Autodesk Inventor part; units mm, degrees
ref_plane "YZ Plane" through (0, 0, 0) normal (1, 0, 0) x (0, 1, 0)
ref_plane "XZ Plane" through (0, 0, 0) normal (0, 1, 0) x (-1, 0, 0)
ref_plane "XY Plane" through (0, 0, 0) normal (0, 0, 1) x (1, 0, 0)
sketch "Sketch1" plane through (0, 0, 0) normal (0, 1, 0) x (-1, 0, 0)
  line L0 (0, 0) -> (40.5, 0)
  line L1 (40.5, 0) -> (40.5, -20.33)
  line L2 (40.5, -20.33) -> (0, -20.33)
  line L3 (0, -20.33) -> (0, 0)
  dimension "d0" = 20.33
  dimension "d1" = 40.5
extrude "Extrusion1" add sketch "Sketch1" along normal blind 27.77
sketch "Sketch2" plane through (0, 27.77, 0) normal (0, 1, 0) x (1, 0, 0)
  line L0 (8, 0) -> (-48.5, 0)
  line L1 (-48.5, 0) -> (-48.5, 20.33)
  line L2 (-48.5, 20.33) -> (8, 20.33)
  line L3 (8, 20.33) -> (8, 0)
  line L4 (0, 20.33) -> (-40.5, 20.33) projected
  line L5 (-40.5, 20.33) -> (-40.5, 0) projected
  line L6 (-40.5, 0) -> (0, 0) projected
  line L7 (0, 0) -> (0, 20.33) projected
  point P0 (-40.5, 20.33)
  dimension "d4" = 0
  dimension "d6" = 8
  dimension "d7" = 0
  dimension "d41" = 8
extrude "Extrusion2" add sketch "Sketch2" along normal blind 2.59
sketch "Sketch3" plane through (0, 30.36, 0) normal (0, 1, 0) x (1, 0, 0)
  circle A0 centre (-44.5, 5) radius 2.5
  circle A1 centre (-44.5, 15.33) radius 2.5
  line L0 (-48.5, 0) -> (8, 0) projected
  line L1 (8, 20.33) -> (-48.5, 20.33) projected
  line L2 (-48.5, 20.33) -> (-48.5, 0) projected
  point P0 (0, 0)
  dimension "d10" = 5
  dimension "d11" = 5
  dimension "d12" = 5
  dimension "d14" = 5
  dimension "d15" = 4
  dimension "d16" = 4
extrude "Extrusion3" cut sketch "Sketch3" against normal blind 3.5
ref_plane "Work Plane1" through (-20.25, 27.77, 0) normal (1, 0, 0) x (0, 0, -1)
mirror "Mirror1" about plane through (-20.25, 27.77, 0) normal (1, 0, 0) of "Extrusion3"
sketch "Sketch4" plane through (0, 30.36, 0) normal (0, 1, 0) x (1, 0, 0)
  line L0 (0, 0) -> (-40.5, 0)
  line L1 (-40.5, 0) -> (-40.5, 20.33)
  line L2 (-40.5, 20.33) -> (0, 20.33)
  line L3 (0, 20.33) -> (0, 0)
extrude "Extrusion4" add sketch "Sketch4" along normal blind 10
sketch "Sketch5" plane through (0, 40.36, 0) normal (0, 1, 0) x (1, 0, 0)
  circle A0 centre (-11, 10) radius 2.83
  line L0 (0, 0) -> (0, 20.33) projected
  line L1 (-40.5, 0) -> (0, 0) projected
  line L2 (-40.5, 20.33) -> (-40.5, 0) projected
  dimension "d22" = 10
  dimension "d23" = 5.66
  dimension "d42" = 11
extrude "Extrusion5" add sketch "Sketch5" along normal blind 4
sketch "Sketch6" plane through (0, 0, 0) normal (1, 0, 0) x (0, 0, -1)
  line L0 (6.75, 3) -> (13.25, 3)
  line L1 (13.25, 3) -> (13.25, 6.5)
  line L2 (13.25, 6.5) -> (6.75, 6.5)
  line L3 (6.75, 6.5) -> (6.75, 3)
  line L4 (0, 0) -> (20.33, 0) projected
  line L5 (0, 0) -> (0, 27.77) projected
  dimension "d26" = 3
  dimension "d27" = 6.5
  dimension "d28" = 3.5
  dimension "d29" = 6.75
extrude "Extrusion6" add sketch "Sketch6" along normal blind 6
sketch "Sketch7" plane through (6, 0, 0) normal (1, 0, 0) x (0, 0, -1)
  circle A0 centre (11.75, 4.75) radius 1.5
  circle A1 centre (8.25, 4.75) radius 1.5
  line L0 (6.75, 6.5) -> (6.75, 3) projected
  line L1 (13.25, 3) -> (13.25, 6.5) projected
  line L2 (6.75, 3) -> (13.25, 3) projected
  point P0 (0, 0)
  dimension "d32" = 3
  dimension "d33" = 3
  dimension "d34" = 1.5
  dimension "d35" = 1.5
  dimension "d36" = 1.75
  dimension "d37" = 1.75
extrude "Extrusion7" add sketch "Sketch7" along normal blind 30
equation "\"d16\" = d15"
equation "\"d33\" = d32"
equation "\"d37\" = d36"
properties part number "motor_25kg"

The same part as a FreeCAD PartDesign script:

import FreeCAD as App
import Part
import Sketcher

V = App.Vector
Q = App.Units.Quantity


def add_polygon(sketch, points):
    """Adds a closed chain of lines whose ends are joined by coincident constraints."""
    first, n = sketch.GeometryCount, len(points)
    for a, b in zip(points, points[1:] + points[:1]):
        sketch.addGeometry(Part.LineSegment(App.Vector(*a, 0), App.Vector(*b, 0)), False)
    for i in range(n):
        sketch.addConstraint(Sketcher.Constraint("Coincident", first + i, 2, first + (i + 1) % n, 1))

doc = App.newDocument("Part")
params = doc.addObject("Spreadsheet::Sheet", "Params")
for row, (alias, value) in enumerate([
    ("sketch1_width", "40.5 mm"),
    ("sketch1_height", "20.33 mm"),
    ("pad1_length", "27.77 mm"),
    ("sketch2_width", "56.5 mm"),
    ("sketch2_height", "20.33 mm"),
    ("pad2_length", "2.59 mm"),
    ("sketch3_diameter", "5 mm"),
    ("pocket1_length", "3.5 mm"),
    ("sketch4_width", "40.5 mm"),
    ("sketch4_height", "20.33 mm"),
    ("pad3_length", "10 mm"),
    ("sketch5_diameter", "5.66 mm"),
    ("pad4_length", "4 mm"),
    ("sketch6_width", "3.5 mm"),
    ("sketch6_height", "6.5 mm"),
    ("pad5_length", "6 mm"),
    ("sketch7_diameter", "3 mm"),
    ("pad6_length", "30 mm"),
], start=1):
    params.set(f"A{row}", alias)
    params.set(f"B{row}", "=" + value)
    params.setAlias(f"B{row}", alias)

body = doc.addObject("PartDesign::Body", "Body")

# Sketch on XZ plane
sketch1 = doc.addObject("Sketcher::SketchObject", "Sketch")
body.addObject(sketch1)
sketch1.AttachmentSupport = (doc.XZ_Plane, [""])
sketch1.MapMode = "FlatFace"
add_polygon(sketch1, [(-40, 0), (0, 0), (0, -20), (-40, -20)])  # lines 0-3
sketch1.addConstraint(Sketcher.Constraint("Horizontal", 0))
sketch1.addConstraint(Sketcher.Constraint("Vertical", 1))
sketch1.addConstraint(Sketcher.Constraint("Horizontal", 2))
sketch1.addConstraint(Sketcher.Constraint("Vertical", 3))
sketch1.addConstraint(Sketcher.Constraint("Coincident", 0, 2, -1, 1))
sketch1.addConstraint(Sketcher.Constraint("DistanceX", 0, 1, 0, 2, Q("40.5 mm")))
sketch1.addConstraint(Sketcher.Constraint("DistanceY", 1, 2, 1, 1, Q("20.33 mm")))
sketch1.setExpression("Constraints[9]", "Params.sketch1_width")
sketch1.setExpression("Constraints[10]", "Params.sketch1_height")
pad1 = doc.addObject("PartDesign::Pad", "Pad")
body.addObject(pad1)
pad1.Profile = sketch1
pad1.setExpression("Length", "Params.pad1_length")
pad1.Reversed = True

# Sketch on XZ plane
sketch2 = doc.addObject("Sketcher::SketchObject", "Sketch001")
body.addObject(sketch2)
sketch2.AttachmentSupport = (doc.XZ_Plane, [""])
sketch2.MapMode = "FlatFace"
sketch2.AttachmentOffset = App.Placement(V(0, 0, -27.77), App.Rotation())
add_polygon(sketch2, [(8, 0), (8, -20), (-48, -20), (-48, 0)])  # lines 0-3
sketch2.addConstraint(Sketcher.Constraint("Vertical", 0))
sketch2.addConstraint(Sketcher.Constraint("Horizontal", 1))
sketch2.addConstraint(Sketcher.Constraint("Vertical", 2))
sketch2.addConstraint(Sketcher.Constraint("Horizontal", 3))
sketch2.addConstraint(Sketcher.Constraint("PointOnObject", 2, 2, -1))
sketch2.addConstraint(Sketcher.Constraint("DistanceX", -1, 1, 0, 2, Q("8 mm")))
sketch2.addConstraint(Sketcher.Constraint("DistanceX", 1, 2, 1, 1, Q("56.5 mm")))
sketch2.addConstraint(Sketcher.Constraint("DistanceY", 0, 2, 0, 1, Q("20.33 mm")))
sketch2.setExpression("Constraints[10]", "Params.sketch2_width")
sketch2.setExpression("Constraints[11]", "Params.sketch2_height")
pad2 = doc.addObject("PartDesign::Pad", "Pad001")
body.addObject(pad2)
pad2.Profile = sketch2
pad2.setExpression("Length", "Params.pad2_length")
pad2.Reversed = True

# Sketch on XZ plane
sketch3 = doc.addObject("Sketcher::SketchObject", "Sketch002")
body.addObject(sketch3)
sketch3.AttachmentSupport = (doc.XZ_Plane, [""])
sketch3.MapMode = "FlatFace"
sketch3.AttachmentOffset = App.Placement(V(0, 0, -30.36), App.Rotation())
sketch3.addGeometry(Part.Circle(V(-44.5, -5, 0), V(0, 0, 1), 2.5), False)
sketch3.addGeometry(Part.Circle(V(-44.5, -15.3, 0), V(0, 0, 1), 2.5), False)
sketch3.addConstraint(Sketcher.Constraint("Equal", 0, 1))
sketch3.addConstraint(Sketcher.Constraint("Vertical", 0, 3, 1, 3))
sketch3.addConstraint(Sketcher.Constraint("Diameter", 0, Q("5 mm")))
sketch3.addConstraint(Sketcher.Constraint("DistanceY", 0, 3, -1, 1, Q("5 mm")))
sketch3.addConstraint(Sketcher.Constraint("DistanceX", 0, 3, -1, 1, Q("44.5 mm")))
sketch3.addConstraint(Sketcher.Constraint("DistanceY", 1, 3, -1, 1, Q("15.33 mm")))
sketch3.setExpression("Constraints[2]", "Params.sketch3_diameter")
pocket1 = doc.addObject("PartDesign::Pocket", "Pocket")
body.addObject(pocket1)
pocket1.Profile = sketch3
pocket1.setExpression("Length", "Params.pocket1_length")
pocket1.Reversed = True
doc.recompute()

datumplane = doc.addObject("PartDesign::Plane", "DatumPlane")
body.addObject(datumplane)
datumplane.AttachmentSupport = (doc.YZ_Plane, [""])
datumplane.MapMode = "FlatFace"
datumplane.AttachmentOffset = App.Placement(V(0, 0, -20.25), App.Rotation())
mirrored = doc.addObject("PartDesign::Mirrored", "Mirrored")
body.addObject(mirrored)
mirrored.Originals = [pocket1]
mirrored.MirrorPlane = (datumplane, [""])
body.Tip = mirrored

# Sketch on XZ plane
sketch4 = doc.addObject("Sketcher::SketchObject", "Sketch003")
body.addObject(sketch4)
sketch4.AttachmentSupport = (doc.XZ_Plane, [""])
sketch4.MapMode = "FlatFace"
sketch4.AttachmentOffset = App.Placement(V(0, 0, -30.36), App.Rotation())
add_polygon(sketch4, [(-40, 0), (0, 0), (0, -20), (-40, -20)])  # lines 0-3
sketch4.addConstraint(Sketcher.Constraint("Horizontal", 0))
sketch4.addConstraint(Sketcher.Constraint("Vertical", 1))
sketch4.addConstraint(Sketcher.Constraint("Horizontal", 2))
sketch4.addConstraint(Sketcher.Constraint("Vertical", 3))
sketch4.addConstraint(Sketcher.Constraint("Coincident", 0, 2, -1, 1))
sketch4.addConstraint(Sketcher.Constraint("DistanceX", 0, 1, 0, 2, Q("40.5 mm")))
sketch4.addConstraint(Sketcher.Constraint("DistanceY", 1, 2, 1, 1, Q("20.33 mm")))
sketch4.setExpression("Constraints[9]", "Params.sketch4_width")
sketch4.setExpression("Constraints[10]", "Params.sketch4_height")
pad3 = doc.addObject("PartDesign::Pad", "Pad002")
body.addObject(pad3)
pad3.Profile = sketch4
pad3.setExpression("Length", "Params.pad3_length")
pad3.Reversed = True

# Sketch on XZ plane
sketch5 = doc.addObject("Sketcher::SketchObject", "Sketch004")
body.addObject(sketch5)
sketch5.AttachmentSupport = (doc.XZ_Plane, [""])
sketch5.MapMode = "FlatFace"
sketch5.AttachmentOffset = App.Placement(V(0, 0, -40.36), App.Rotation())
sketch5.addGeometry(Part.Circle(V(-11, -10, 0), V(0, 0, 1), 2.8), False)
sketch5.addConstraint(Sketcher.Constraint("Diameter", 0, Q("5.66 mm")))
sketch5.addConstraint(Sketcher.Constraint("DistanceX", 0, 3, -1, 1, Q("11 mm")))
sketch5.addConstraint(Sketcher.Constraint("DistanceY", 0, 3, -1, 1, Q("10 mm")))
sketch5.setExpression("Constraints[0]", "Params.sketch5_diameter")
pad4 = doc.addObject("PartDesign::Pad", "Pad003")
body.addObject(pad4)
pad4.Profile = sketch5
pad4.setExpression("Length", "Params.pad4_length")
pad4.Reversed = True

# Sketch on YZ plane
sketch6 = doc.addObject("Sketcher::SketchObject", "Sketch005")
body.addObject(sketch6)
sketch6.AttachmentSupport = (doc.YZ_Plane, [""])
sketch6.MapMode = "FlatFace"
add_polygon(sketch6, [(6.5, -6.8), (3, -6.8), (3, -13.2), (6.5, -13.2)])  # lines 0-3
sketch6.addConstraint(Sketcher.Constraint("Horizontal", 0))
sketch6.addConstraint(Sketcher.Constraint("Vertical", 1))
sketch6.addConstraint(Sketcher.Constraint("Horizontal", 2))
sketch6.addConstraint(Sketcher.Constraint("Vertical", 3))
sketch6.addConstraint(Sketcher.Constraint("DistanceX", 0, 2, 0, 1, Q("3.5 mm")))
sketch6.addConstraint(Sketcher.Constraint("DistanceY", 1, 2, 1, 1, Q("6.5 mm")))
sketch6.addConstraint(Sketcher.Constraint("DistanceX", -1, 1, 0, 2, Q("3 mm")))
sketch6.addConstraint(Sketcher.Constraint("DistanceY", 0, 2, -1, 1, Q("6.75 mm")))
sketch6.setExpression("Constraints[8]", "Params.sketch6_width")
sketch6.setExpression("Constraints[9]", "Params.sketch6_height")
pad5 = doc.addObject("PartDesign::Pad", "Pad004")
body.addObject(pad5)
pad5.Profile = sketch6
pad5.setExpression("Length", "Params.pad5_length")

# Sketch on YZ plane
sketch7 = doc.addObject("Sketcher::SketchObject", "Sketch006")
body.addObject(sketch7)
sketch7.AttachmentSupport = (doc.YZ_Plane, [""])
sketch7.MapMode = "FlatFace"
sketch7.AttachmentOffset = App.Placement(V(0, 0, 6), App.Rotation())
sketch7.addGeometry(Part.Circle(V(4.8, -11.8, 0), V(0, 0, 1), 1.5), False)
sketch7.addGeometry(Part.Circle(V(4.8, -8.2, 0), V(0, 0, 1), 1.5), False)
sketch7.addConstraint(Sketcher.Constraint("Equal", 0, 1))
sketch7.addConstraint(Sketcher.Constraint("Vertical", 0, 3, 1, 3))
sketch7.addConstraint(Sketcher.Constraint("Diameter", 0, Q("3 mm")))
sketch7.addConstraint(Sketcher.Constraint("DistanceY", 0, 3, 1, 3, Q("3.5 mm")))
sketch7.addConstraint(Sketcher.Constraint("DistanceX", -1, 1, 0, 3, Q("4.75 mm")))
sketch7.addConstraint(Sketcher.Constraint("DistanceY", 0, 3, -1, 1, Q("11.75 mm")))
sketch7.setExpression("Constraints[2]", "Params.sketch7_diameter")
pad6 = doc.addObject("PartDesign::Pad", "Pad005")
body.addObject(pad6)
pad6.Profile = sketch7
pad6.setExpression("Length", "Params.pad6_length")

doc.recompute()
